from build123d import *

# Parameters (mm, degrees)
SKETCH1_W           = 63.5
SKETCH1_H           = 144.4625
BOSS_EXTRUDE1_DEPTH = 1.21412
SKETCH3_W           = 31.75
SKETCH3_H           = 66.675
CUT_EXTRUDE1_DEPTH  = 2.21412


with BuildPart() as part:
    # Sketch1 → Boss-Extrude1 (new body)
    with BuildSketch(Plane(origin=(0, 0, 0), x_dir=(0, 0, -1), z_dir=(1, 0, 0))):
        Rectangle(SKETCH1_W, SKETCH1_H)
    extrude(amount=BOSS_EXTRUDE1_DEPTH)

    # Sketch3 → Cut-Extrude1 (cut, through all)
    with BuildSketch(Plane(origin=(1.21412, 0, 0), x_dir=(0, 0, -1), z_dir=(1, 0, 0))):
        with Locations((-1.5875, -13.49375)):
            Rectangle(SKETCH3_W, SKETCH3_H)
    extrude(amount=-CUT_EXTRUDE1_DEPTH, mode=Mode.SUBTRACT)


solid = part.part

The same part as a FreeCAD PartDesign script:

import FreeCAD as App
import Part
import Sketcher

V = App.Vector
Q = App.Units.Quantity

doc = App.newDocument("Part")
body = doc.addObject("PartDesign::Body", "Body")

sketch1 = body.newObject("Sketcher::SketchObject", "Sketch")
sketch1.AttachmentSupport = (doc.getObject("YZ_Plane"), [""])
sketch1.MapMode = "FlatFace"
sketch1.addGeometry(Part.LineSegment(V(72, 32, 0), V(-72, 32, 0)), False)
sketch1.addGeometry(Part.LineSegment(V(-72, 32, 0), V(-72, -32, 0)), False)
sketch1.addGeometry(Part.LineSegment(V(-72, -32, 0), V(72, -32, 0)), False)
sketch1.addGeometry(Part.LineSegment(V(72, -32, 0), V(72, 32, 0)), False)
sketch1.addConstraint(Sketcher.Constraint("Coincident", 0, 2, 1, 1))
sketch1.addConstraint(Sketcher.Constraint("Coincident", 1, 2, 2, 1))
sketch1.addConstraint(Sketcher.Constraint("Coincident", 2, 2, 3, 1))
sketch1.addConstraint(Sketcher.Constraint("Coincident", 3, 2, 0, 1))
sketch1.addConstraint(Sketcher.Constraint("Horizontal", 0))
sketch1.addConstraint(Sketcher.Constraint("Vertical", 1))
sketch1.addConstraint(Sketcher.Constraint("Horizontal", 2))
sketch1.addConstraint(Sketcher.Constraint("Vertical", 3))
sketch1.addConstraint(Sketcher.Constraint("Symmetric", 0, 2, 2, 2, -1, 1))
sketch1.addConstraint(Sketcher.Constraint("DistanceY", 1, 2, 1, 1, Q("2.5 in")))
sketch1.addConstraint(Sketcher.Constraint("DistanceX", 0, 2, 0, 1, Q("5.6875 in")))
pad1 = body.newObject("PartDesign::Pad", "Pad")
pad1.Profile = sketch1
pad1.Length = Q("0.0478 in")

sketch2 = body.newObject("Sketcher::SketchObject", "Sketch001")
sketch2.AttachmentSupport = (doc.getObject("YZ_Plane"), [""])
sketch2.MapMode = "FlatFace"
sketch2.AttachmentOffset = App.Placement(V(0, 0, 0.0478 * 25.4), App.Rotation())
sketch2.addGeometry(Part.LineSegment(V(20, 17, 0), V(-47, 17, 0)), False)
sketch2.addGeometry(Part.LineSegment(V(-47, 17, 0), V(-47, -14, 0)), False)
sketch2.addGeometry(Part.LineSegment(V(-47, -14, 0), V(20, -14, 0)), False)
sketch2.addGeometry(Part.LineSegment(V(20, -14, 0), V(20, 17, 0)), False)
sketch2.addConstraint(Sketcher.Constraint("Coincident", 0, 2, 1, 1))
sketch2.addConstraint(Sketcher.Constraint("Coincident", 1, 2, 2, 1))
sketch2.addConstraint(Sketcher.Constraint("Coincident", 2, 2, 3, 1))
sketch2.addConstraint(Sketcher.Constraint("Coincident", 3, 2, 0, 1))
sketch2.addConstraint(Sketcher.Constraint("Horizontal", 0))
sketch2.addConstraint(Sketcher.Constraint("Vertical", 1))
sketch2.addConstraint(Sketcher.Constraint("Horizontal", 2))
sketch2.addConstraint(Sketcher.Constraint("Vertical", 3))
sketch2.addConstraint(Sketcher.Constraint("DistanceY", 1, 2, 1, 1, Q("1.25 in")))
sketch2.addConstraint(Sketcher.Constraint("DistanceX", 0, 2, 0, 1, Q("2.625 in")))
sketch2.addConstraint(Sketcher.Constraint("DistanceX", 0, 2, -1, 1, Q("1.84375 in")))
sketch2.addConstraint(Sketcher.Constraint("DistanceY", -1, 1, 0, 2, Q("0.6875 in")))
pocket1 = body.newObject("PartDesign::Pocket", "Pocket")
pocket1.Profile = sketch2
pocket1.Type = "ThroughAll"

doc.recompute()
